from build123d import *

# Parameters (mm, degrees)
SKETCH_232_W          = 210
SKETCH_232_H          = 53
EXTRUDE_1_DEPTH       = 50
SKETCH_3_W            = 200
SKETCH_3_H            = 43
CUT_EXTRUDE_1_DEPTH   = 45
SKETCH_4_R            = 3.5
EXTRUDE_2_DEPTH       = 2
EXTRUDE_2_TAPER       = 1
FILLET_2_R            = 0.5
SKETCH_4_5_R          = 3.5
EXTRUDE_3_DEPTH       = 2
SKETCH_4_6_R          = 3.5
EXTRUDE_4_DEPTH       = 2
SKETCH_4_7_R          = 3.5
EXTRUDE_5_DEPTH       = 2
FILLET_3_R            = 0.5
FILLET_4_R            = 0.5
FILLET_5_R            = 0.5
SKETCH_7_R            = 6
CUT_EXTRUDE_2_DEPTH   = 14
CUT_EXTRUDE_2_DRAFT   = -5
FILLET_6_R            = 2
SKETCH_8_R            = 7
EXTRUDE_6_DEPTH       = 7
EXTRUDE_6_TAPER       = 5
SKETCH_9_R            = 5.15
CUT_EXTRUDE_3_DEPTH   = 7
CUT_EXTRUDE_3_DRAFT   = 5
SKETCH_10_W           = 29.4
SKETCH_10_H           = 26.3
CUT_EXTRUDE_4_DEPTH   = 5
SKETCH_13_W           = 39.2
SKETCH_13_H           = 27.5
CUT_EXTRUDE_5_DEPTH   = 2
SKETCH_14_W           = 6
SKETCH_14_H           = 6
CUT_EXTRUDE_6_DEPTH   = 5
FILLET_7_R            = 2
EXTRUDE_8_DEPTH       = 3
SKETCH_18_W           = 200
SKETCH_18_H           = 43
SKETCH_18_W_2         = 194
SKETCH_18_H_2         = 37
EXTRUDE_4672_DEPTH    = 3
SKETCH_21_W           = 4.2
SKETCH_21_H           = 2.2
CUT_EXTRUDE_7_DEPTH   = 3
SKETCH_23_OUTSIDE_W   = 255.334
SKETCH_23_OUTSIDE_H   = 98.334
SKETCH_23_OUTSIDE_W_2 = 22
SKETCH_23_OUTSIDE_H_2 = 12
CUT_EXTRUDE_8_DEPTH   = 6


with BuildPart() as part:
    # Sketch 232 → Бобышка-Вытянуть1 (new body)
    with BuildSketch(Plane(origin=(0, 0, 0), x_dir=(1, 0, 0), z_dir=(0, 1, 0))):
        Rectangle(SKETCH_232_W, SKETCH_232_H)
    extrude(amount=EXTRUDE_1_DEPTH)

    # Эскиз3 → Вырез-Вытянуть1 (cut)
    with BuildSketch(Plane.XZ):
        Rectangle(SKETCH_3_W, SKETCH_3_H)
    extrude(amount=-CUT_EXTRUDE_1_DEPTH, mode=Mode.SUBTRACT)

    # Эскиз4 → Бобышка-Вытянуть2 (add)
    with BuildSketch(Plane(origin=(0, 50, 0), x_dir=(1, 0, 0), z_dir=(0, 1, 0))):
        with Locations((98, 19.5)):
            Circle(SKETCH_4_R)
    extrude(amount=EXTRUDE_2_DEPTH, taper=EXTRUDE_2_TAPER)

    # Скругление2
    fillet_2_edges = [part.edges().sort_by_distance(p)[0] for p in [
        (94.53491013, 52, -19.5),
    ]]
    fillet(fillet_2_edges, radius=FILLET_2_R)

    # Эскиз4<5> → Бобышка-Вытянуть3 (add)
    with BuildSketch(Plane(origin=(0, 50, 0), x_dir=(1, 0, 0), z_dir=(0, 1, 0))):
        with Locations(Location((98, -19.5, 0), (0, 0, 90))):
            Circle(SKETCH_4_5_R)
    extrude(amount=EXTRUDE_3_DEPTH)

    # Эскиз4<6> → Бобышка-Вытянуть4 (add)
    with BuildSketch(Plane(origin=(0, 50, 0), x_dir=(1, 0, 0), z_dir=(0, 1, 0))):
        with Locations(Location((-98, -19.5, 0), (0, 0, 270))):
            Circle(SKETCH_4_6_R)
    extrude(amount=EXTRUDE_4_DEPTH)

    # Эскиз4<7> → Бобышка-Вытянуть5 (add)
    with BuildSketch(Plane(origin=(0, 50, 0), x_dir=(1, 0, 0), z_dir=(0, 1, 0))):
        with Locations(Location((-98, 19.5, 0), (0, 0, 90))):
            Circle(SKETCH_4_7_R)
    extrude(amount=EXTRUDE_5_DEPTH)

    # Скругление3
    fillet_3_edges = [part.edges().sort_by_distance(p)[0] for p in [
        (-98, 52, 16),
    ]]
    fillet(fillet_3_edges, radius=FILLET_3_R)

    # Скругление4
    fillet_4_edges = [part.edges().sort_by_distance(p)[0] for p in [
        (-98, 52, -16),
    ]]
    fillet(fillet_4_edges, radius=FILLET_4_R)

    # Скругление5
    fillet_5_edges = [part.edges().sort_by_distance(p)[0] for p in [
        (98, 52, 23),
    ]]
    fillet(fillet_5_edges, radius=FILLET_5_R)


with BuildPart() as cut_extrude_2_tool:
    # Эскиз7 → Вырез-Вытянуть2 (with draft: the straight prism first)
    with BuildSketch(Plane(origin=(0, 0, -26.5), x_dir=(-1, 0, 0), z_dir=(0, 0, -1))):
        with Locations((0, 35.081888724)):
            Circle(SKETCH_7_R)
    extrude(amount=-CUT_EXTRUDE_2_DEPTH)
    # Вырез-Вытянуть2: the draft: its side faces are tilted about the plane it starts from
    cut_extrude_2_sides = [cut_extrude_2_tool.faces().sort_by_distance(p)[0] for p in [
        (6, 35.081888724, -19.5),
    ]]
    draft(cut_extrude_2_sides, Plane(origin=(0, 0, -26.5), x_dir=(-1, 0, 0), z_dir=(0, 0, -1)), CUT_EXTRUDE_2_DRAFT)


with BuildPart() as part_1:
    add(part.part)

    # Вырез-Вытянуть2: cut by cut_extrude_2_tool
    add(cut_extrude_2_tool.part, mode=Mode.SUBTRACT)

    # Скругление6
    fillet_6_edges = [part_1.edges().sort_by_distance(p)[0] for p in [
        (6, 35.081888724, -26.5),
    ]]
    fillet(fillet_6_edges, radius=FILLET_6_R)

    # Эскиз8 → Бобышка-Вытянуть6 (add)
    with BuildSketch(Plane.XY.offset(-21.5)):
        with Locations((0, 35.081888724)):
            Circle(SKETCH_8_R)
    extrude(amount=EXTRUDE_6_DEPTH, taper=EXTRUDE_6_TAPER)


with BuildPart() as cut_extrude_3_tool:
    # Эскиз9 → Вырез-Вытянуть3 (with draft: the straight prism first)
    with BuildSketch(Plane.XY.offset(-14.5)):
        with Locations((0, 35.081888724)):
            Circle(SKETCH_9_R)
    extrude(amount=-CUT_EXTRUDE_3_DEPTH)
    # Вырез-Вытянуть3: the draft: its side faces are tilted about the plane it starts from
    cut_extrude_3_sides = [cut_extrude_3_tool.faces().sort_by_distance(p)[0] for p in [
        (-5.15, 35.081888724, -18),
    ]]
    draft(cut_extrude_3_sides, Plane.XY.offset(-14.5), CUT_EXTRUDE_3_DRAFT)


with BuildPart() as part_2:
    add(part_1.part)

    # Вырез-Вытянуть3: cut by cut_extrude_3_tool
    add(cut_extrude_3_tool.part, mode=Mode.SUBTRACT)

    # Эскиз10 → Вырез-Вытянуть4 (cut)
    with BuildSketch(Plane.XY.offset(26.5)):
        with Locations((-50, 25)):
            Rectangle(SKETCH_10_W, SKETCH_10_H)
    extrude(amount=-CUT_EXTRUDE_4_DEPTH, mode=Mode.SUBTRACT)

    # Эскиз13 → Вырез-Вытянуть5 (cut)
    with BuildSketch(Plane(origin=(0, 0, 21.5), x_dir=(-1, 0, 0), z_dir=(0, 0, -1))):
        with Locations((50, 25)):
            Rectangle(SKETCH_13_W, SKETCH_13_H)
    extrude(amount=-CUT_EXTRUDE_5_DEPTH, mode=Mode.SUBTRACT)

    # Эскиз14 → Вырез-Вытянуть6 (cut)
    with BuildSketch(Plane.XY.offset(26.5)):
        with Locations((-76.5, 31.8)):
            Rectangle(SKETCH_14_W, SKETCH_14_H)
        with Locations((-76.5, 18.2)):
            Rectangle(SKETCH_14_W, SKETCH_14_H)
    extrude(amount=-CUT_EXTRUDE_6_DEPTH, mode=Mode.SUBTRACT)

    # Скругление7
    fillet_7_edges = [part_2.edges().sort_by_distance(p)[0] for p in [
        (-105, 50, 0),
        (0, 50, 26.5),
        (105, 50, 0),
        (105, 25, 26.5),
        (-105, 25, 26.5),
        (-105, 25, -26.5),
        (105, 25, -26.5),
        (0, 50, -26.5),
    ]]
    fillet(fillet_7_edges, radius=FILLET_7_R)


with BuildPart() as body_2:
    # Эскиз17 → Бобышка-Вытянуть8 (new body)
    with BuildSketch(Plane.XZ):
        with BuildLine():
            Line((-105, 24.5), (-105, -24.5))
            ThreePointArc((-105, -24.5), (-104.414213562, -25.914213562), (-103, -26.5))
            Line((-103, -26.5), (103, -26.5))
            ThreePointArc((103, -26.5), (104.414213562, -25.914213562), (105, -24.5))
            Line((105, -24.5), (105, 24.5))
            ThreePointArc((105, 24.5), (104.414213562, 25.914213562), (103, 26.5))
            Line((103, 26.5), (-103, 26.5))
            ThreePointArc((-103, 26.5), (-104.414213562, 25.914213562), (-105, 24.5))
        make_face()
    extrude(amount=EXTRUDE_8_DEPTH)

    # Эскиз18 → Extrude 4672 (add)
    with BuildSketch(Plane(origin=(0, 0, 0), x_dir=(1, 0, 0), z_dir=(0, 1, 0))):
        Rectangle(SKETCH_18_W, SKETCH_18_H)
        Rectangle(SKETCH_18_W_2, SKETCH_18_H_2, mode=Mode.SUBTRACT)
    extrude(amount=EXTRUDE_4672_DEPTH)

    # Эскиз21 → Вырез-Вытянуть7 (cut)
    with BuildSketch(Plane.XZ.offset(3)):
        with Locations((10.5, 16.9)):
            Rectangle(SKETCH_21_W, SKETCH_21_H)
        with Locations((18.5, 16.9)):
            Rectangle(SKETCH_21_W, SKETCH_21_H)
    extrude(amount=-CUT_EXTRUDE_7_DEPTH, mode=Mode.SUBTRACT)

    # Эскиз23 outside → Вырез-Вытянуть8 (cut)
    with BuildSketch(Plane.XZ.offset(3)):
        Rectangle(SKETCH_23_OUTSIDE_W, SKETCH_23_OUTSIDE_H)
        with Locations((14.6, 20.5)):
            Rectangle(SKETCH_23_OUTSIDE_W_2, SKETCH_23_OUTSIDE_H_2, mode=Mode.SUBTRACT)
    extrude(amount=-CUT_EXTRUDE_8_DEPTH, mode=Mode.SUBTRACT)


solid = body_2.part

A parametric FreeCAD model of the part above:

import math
import FreeCAD as App
import Part
import Sketcher
from FreeCAD import Vector
Q = App.Units.Quantity


def edges_at(feature, points):
    """Names of the edges that pass closest to the given points."""
    edges = feature.Shape.Edges
    near = lambda p: min(range(len(edges)), key=lambda i: edges[i].distToShape(Part.Vertex(*p))[0])
    return sorted({f"Edge{near(p) + 1}" for p in points})


def faces_at(feature, points):
    """Names of the faces that lie closest to the given points."""
    faces = feature.Shape.Faces
    near = lambda p: min(range(len(faces)), key=lambda i: faces[i].distToShape(Part.Vertex(*p))[0])
    return sorted({f"Face{near(p) + 1}" for p in points})

doc = App.newDocument("Part")
body = doc.addObject("PartDesign::Body", "Body")

# Sketch on XZ plane
sketch1 = body.newObject("Sketcher::SketchObject", "Sketch")
sketch1.AttachmentSupport = (doc.getObject("XZ_Plane"), [""])
sketch1.MapMode = "FlatFace"
sketch1.addGeometry([
    Part.LineSegment(Vector(-105, -26, 0), Vector(-105, 26, 0)),
    Part.LineSegment(Vector(-105, 26, 0), Vector(105, 26, 0)),
    Part.LineSegment(Vector(105, 26, 0), Vector(105, -26, 0)),
    Part.LineSegment(Vector(105, -26, 0), Vector(-105, -26, 0)),
], False)
sketch1.addConstraint([
    Sketcher.Constraint("Coincident", 0, 2, 1, 1),
    Sketcher.Constraint("Coincident", 1, 2, 2, 1),
    Sketcher.Constraint("Coincident", 2, 2, 3, 1),
    Sketcher.Constraint("Coincident", 3, 2, 0, 1),
    Sketcher.Constraint("Vertical", 0),
    Sketcher.Constraint("Horizontal", 1),
    Sketcher.Constraint("Vertical", 2),
    Sketcher.Constraint("Horizontal", 3),
    Sketcher.Constraint("Symmetric", 0, 2, 2, 2, -1, 1),
    Sketcher.Constraint("DistanceX", 1, 1, 1, 2, Q("210 mm")),
    Sketcher.Constraint("DistanceY", 0, 1, 0, 2, Q("53 mm")),
])
pad1 = body.newObject("PartDesign::Pad", "Pad")
pad1.Profile = sketch1
pad1.Length = 50
pad1.Reversed = True

# Sketch on XZ plane
sketch2 = body.newObject("Sketcher::SketchObject", "Sketch001")
sketch2.AttachmentSupport = (doc.getObject("XZ_Plane"), [""])
sketch2.MapMode = "FlatFace"
sketch2.addGeometry([
    Part.LineSegment(Vector(-100, 22, 0), Vector(-100, -22, 0)),
    Part.LineSegment(Vector(-100, -22, 0), Vector(100, -22, 0)),
    Part.LineSegment(Vector(100, -22, 0), Vector(100, 22, 0)),
    Part.LineSegment(Vector(100, 22, 0), Vector(-100, 22, 0)),
], False)
sketch2.addConstraint([
    Sketcher.Constraint("Coincident", 0, 2, 1, 1),
    Sketcher.Constraint("Coincident", 1, 2, 2, 1),
    Sketcher.Constraint("Coincident", 2, 2, 3, 1),
    Sketcher.Constraint("Coincident", 3, 2, 0, 1),
    Sketcher.Constraint("Vertical", 0),
    Sketcher.Constraint("Horizontal", 1),
    Sketcher.Constraint("Vertical", 2),
    Sketcher.Constraint("Horizontal", 3),
    Sketcher.Constraint("Symmetric", 0, 2, 2, 2, -1, 1),
    Sketcher.Constraint("DistanceX", 1, 1, 1, 2, Q("200 mm")),
    Sketcher.Constraint("DistanceY", 0, 2, 0, 1, Q("43 mm")),
])
pocket1 = body.newObject("PartDesign::Pocket", "Pocket")
pocket1.Profile = sketch2
pocket1.Length = 45

# Sketch on XZ plane
sketch3 = body.newObject("Sketcher::SketchObject", "Sketch002")
sketch3.AttachmentSupport = (doc.getObject("XZ_Plane"), [""])
sketch3.MapMode = "FlatFace"
sketch3.AttachmentOffset = App.Placement(Vector(0, 0, -50), App.Rotation())
sketch3.addGeometry(Part.Circle(Vector(98, -19.5, 0), Vector(0, 0, 1), 3.5), False)
sketch3.addConstraint([
    Sketcher.Constraint("Diameter", 0, Q("7 mm")),
    Sketcher.Constraint("DistanceX", -1, 1, 0, 3, Q("98 mm")),
    Sketcher.Constraint("DistanceY", 0, 3, -1, 1, Q("19.5 mm")),
])
pad2 = body.newObject("PartDesign::Pad", "Pad001")
pad2.Profile = sketch3
pad2.Length = 2
pad2.Reversed = True
pad2.TaperAngle = -1
doc.recompute()

fillet = body.newObject("PartDesign::Fillet", "Fillet")
fillet.Base = (pad2, edges_at(pad2, [(94.535, 52, -19.5)]))
fillet.Radius = 0.5

# Sketch on XZ plane
sketch4 = body.newObject("Sketcher::SketchObject", "Sketch003")
sketch4.AttachmentSupport = (doc.getObject("XZ_Plane"), [""])
sketch4.MapMode = "FlatFace"
sketch4.AttachmentOffset = App.Placement(Vector(0, 0, -50), App.Rotation())
sketch4.addGeometry(Part.Circle(Vector(98, 19.5, 0), Vector(0, 0, 1), 3.5), False)
sketch4.addConstraint([
    Sketcher.Constraint("Diameter", 0, Q("7 mm")),
    Sketcher.Constraint("DistanceX", -1, 1, 0, 3, Q("98 mm")),
    Sketcher.Constraint("DistanceY", -1, 1, 0, 3, Q("19.5 mm")),
])
pad3 = body.newObject("PartDesign::Pad", "Pad002")
pad3.Profile = sketch4
pad3.Length = 2
pad3.Reversed = True

# Sketch on XZ plane
sketch5 = body.newObject("Sketcher::SketchObject", "Sketch004")
sketch5.AttachmentSupport = (doc.getObject("XZ_Plane"), [""])
sketch5.MapMode = "FlatFace"
sketch5.AttachmentOffset = App.Placement(Vector(0, 0, -50), App.Rotation())
sketch5.addGeometry(Part.Circle(Vector(-98, 19.5, 0), Vector(0, 0, 1), 3.5), False)
sketch5.addConstraint([
    Sketcher.Constraint("Diameter", 0, Q("7 mm")),
    Sketcher.Constraint("DistanceX", 0, 3, -1, 1, Q("98 mm")),
    Sketcher.Constraint("DistanceY", -1, 1, 0, 3, Q("19.5 mm")),
])
pad4 = body.newObject("PartDesign::Pad", "Pad003")
pad4.Profile = sketch5
pad4.Length = 2
pad4.Reversed = True

# Sketch on XZ plane
sketch6 = body.newObject("Sketcher::SketchObject", "Sketch005")
sketch6.AttachmentSupport = (doc.getObject("XZ_Plane"), [""])
sketch6.MapMode = "FlatFace"
sketch6.AttachmentOffset = App.Placement(Vector(0, 0, -50), App.Rotation())
sketch6.addGeometry(Part.Circle(Vector(-98, -19.5, 0), Vector(0, 0, 1), 3.5), False)
sketch6.addConstraint([
    Sketcher.Constraint("Diameter", 0, Q("7 mm")),
    Sketcher.Constraint("DistanceX", 0, 3, -1, 1, Q("98 mm")),
    Sketcher.Constraint("DistanceY", 0, 3, -1, 1, Q("19.5 mm")),
])
pad5 = body.newObject("PartDesign::Pad", "Pad004")
pad5.Profile = sketch6
pad5.Length = 2
pad5.Reversed = True
doc.recompute()

fillet2 = body.newObject("PartDesign::Fillet", "Fillet001")
fillet2.Base = (pad5, edges_at(pad5, [(-98, 52, 16)]))
fillet2.Radius = 0.5
doc.recompute()

fillet3 = body.newObject("PartDesign::Fillet", "Fillet002")
fillet3.Base = (fillet2, edges_at(fillet2, [(-98, 52, -16)]))
fillet3.Radius = 0.5
doc.recompute()

fillet4 = body.newObject("PartDesign::Fillet", "Fillet003")
fillet4.Base = (fillet3, edges_at(fillet3, [(98, 52, 23)]))
fillet4.Radius = 0.5
body2 = doc.addObject("PartDesign::Body", "Body001")

# Sketch on XY plane
sketch7 = body2.newObject("Sketcher::SketchObject", "Sketch006")
sketch7.AttachmentSupport = (doc.getObject("XY_Plane001"), [""])
sketch7.MapMode = "FlatFace"
sketch7.AttachmentOffset = App.Placement(Vector(0, 0, -26.5), App.Rotation())
sketch7.addGeometry(Part.Circle(Vector(0, 35, 0), Vector(0, 0, 1), 6), False)
sketch7.addConstraint([
    Sketcher.Constraint("PointOnObject", 0, 3, -2),
    Sketcher.Constraint("Diameter", 0, Q("12 mm")),
    Sketcher.Constraint("DistanceY", -1, 1, 0, 3, Q("35.081889 mm")),
])
pad6 = body2.newObject("PartDesign::Pad", "Pad005")
pad6.Profile = sketch7
pad6.Length = 14
doc.recompute()

datumplane = body2.newObject("PartDesign::Plane", "DatumPlane")
datumplane.AttachmentSupport = (doc.getObject("XY_Plane001"), [""])
datumplane.MapMode = "FlatFace"
datumplane.AttachmentOffset = App.Placement(Vector(0, 0, -26.5), App.Rotation())
draft = body2.newObject("PartDesign::Draft", "Draft")
draft.Base = (pad6, faces_at(pad6, [(6, 35.082, -19.5)]))
draft.NeutralPlane = (datumplane, [""])
draft.Angle = 5
draft.Reversed = False
doc.recompute()

boolean = body.newObject("PartDesign::Boolean", "Boolean")
boolean.Type = "Cut"
boolean.addObjects([body2])
doc.recompute()

fillet5 = body.newObject("PartDesign::Fillet", "Fillet004")
fillet5.Base = (boolean, edges_at(boolean, [(6, 35.082, -26.5)]))
fillet5.Radius = 2

# Sketch on XY plane
sketch8 = body.newObject("Sketcher::SketchObject", "Sketch007")
sketch8.AttachmentSupport = (doc.getObject("XY_Plane"), [""])
sketch8.MapMode = "FlatFace"
sketch8.AttachmentOffset = App.Placement(Vector(0, 0, -21.5), App.Rotation())
sketch8.addGeometry(Part.Circle(Vector(0, 35, 0), Vector(0, 0, 1), 7), False)
sketch8.addConstraint([
    Sketcher.Constraint("PointOnObject", 0, 3, -2),
    Sketcher.Constraint("Diameter", 0, Q("14 mm")),
    Sketcher.Constraint("DistanceY", -1, 1, 0, 3, Q("35.081889 mm")),
])
pad7 = body.newObject("PartDesign::Pad", "Pad006")
pad7.Profile = sketch8
pad7.Length = 7
pad7.TaperAngle = -5
body3 = doc.addObject("PartDesign::Body", "Body002")

# Sketch on XY plane
sketch9 = body3.newObject("Sketcher::SketchObject", "Sketch008")
sketch9.AttachmentSupport = (doc.getObject("XY_Plane002"), [""])
sketch9.MapMode = "FlatFace"
sketch9.AttachmentOffset = App.Placement(Vector(0, 0, -14.5), App.Rotation())
sketch9.addGeometry(Part.Circle(Vector(0, 35, 0), Vector(0, 0, 1), 5), False)
sketch9.addConstraint([
    Sketcher.Constraint("PointOnObject", 0, 3, -2),
    Sketcher.Constraint("Diameter", 0, Q("10.3 mm")),
    Sketcher.Constraint("DistanceY", -1, 1, 0, 3, Q("35.081889 mm")),
])
pad8 = body3.newObject("PartDesign::Pad", "Pad007")
pad8.Profile = sketch9
pad8.Length = 7
pad8.Reversed = True
doc.recompute()

datumplane2 = body3.newObject("PartDesign::Plane", "DatumPlane001")
datumplane2.AttachmentSupport = (doc.getObject("XY_Plane002"), [""])
datumplane2.MapMode = "FlatFace"
datumplane2.AttachmentOffset = App.Placement(Vector(0, 0, -14.5), App.Rotation())
draft2 = body3.newObject("PartDesign::Draft", "Draft001")
draft2.Base = (pad8, faces_at(pad8, [(-5.15, 35.082, -18)]))
draft2.NeutralPlane = (datumplane2, [""])
draft2.Angle = 5
draft2.Reversed = False
doc.recompute()

boolean2 = body.newObject("PartDesign::Boolean", "Boolean001")
boolean2.Type = "Cut"
boolean2.addObjects([body3])

# Sketch on XY plane
sketch10 = body.newObject("Sketcher::SketchObject", "Sketch009")
sketch10.AttachmentSupport = (doc.getObject("XY_Plane"), [""])
sketch10.MapMode = "FlatFace"
sketch10.AttachmentOffset = App.Placement(Vector(0, 0, 26.5), App.Rotation())
sketch10.addGeometry([
    Part.LineSegment(Vector(-65, 38, 0), Vector(-65, 12, 0)),
    Part.LineSegment(Vector(-65, 12, 0), Vector(-35, 12, 0)),
    Part.LineSegment(Vector(-35, 12, 0), Vector(-35, 38, 0)),
    Part.LineSegment(Vector(-35, 38, 0), Vector(-65, 38, 0)),
], False)
sketch10.addConstraint([
    Sketcher.Constraint("Coincident", 0, 2, 1, 1),
    Sketcher.Constraint("Coincident", 1, 2, 2, 1),
    Sketcher.Constraint("Coincident", 2, 2, 3, 1),
    Sketcher.Constraint("Coincident", 3, 2, 0, 1),
    Sketcher.Constraint("Vertical", 0),
    Sketcher.Constraint("Horizontal", 1),
    Sketcher.Constraint("Vertical", 2),
    Sketcher.Constraint("Horizontal", 3),
    Sketcher.Constraint("DistanceX", 1, 1, 1, 2, Q("29.4 mm")),
    Sketcher.Constraint("DistanceY", 0, 2, 0, 1, Q("26.3 mm")),
    Sketcher.Constraint("DistanceX", 0, 2, -1, 1, Q("64.7 mm")),
    Sketcher.Constraint("DistanceY", -1, 1, 0, 2, Q("11.85 mm")),
])
pocket2 = body.newObject("PartDesign::Pocket", "Pocket001")
pocket2.Profile = sketch10
pocket2.Length = 5

# Sketch on XY plane
sketch11 = body.newObject("Sketcher::SketchObject", "Sketch010")
sketch11.AttachmentSupport = (doc.getObject("XY_Plane"), [""])
sketch11.MapMode = "FlatFace"
sketch11.AttachmentOffset = App.Placement(Vector(0, 0, 21.5), App.Rotation())
sketch11.addGeometry([
    Part.LineSegment(Vector(-30, 39, 0), Vector(-30, 11, 0)),
    Part.LineSegment(Vector(-30, 11, 0), Vector(-70, 11, 0)),
    Part.LineSegment(Vector(-70, 11, 0), Vector(-70, 39, 0)),
    Part.LineSegment(Vector(-70, 39, 0), Vector(-30, 39, 0)),
], False)
sketch11.addConstraint([
    Sketcher.Constraint("Coincident", 0, 2, 1, 1),
    Sketcher.Constraint("Coincident", 1, 2, 2, 1),
    Sketcher.Constraint("Coincident", 2, 2, 3, 1),
    Sketcher.Constraint("Coincident", 3, 2, 0, 1),
    Sketcher.Constraint("Vertical", 0),
    Sketcher.Constraint("Horizontal", 1),
    Sketcher.Constraint("Vertical", 2),
    Sketcher.Constraint("Horizontal", 3),
    Sketcher.Constraint("DistanceX", 1, 2, 1, 1, Q("39.2 mm")),
    Sketcher.Constraint("DistanceY", 0, 2, 0, 1, Q("27.5 mm")),
    Sketcher.Constraint("DistanceX", 0, 2, -1, 1, Q("30.4 mm")),
    Sketcher.Constraint("DistanceY", -1, 1, 0, 2, Q("11.25 mm")),
])
pocket3 = body.newObject("PartDesign::Pocket", "Pocket002")
pocket3.Profile = sketch11
pocket3.Length = 2
pocket3.Reversed = True

# Sketch on XY plane
sketch12 = body.newObject("Sketcher::SketchObject", "Sketch011")
sketch12.AttachmentSupport = (doc.getObject("XY_Plane"), [""])
sketch12.MapMode = "FlatFace"
sketch12.AttachmentOffset = App.Placement(Vector(0, 0, 26.5), App.Rotation())
sketch12.addGeometry([
    Part.LineSegment(Vector(-80, 35, 0), Vector(-80, 29, 0)),  # 0
    Part.LineSegment(Vector(-80, 29, 0), Vector(-74, 29, 0)),  # 1
    Part.LineSegment(Vector(-74, 29, 0), Vector(-74, 35, 0)),  # 2
    Part.LineSegment(Vector(-74, 35, 0), Vector(-80, 35, 0)),  # 3
    Part.LineSegment(Vector(-80, 21, 0), Vector(-80, 15, 0)),  # 4
    Part.LineSegment(Vector(-80, 15, 0), Vector(-74, 15, 0)),  # 5
    Part.LineSegment(Vector(-74, 15, 0), Vector(-74, 21, 0)),  # 6
    Part.LineSegment(Vector(-74, 21, 0), Vector(-80, 21, 0)),  # 7
], False)
sketch12.addConstraint([
    Sketcher.Constraint("Coincident", 0, 2, 1, 1),
    Sketcher.Constraint("Coincident", 1, 2, 2, 1),
    Sketcher.Constraint("Coincident", 2, 2, 3, 1),
    Sketcher.Constraint("Coincident", 3, 2, 0, 1),
    Sketcher.Constraint("Coincident", 4, 2, 5, 1),
    Sketcher.Constraint("Coincident", 5, 2, 6, 1),
    Sketcher.Constraint("Coincident", 6, 2, 7, 1),
    Sketcher.Constraint("Coincident", 7, 2, 4, 1),
    Sketcher.Constraint("Vertical", 0),
    Sketcher.Constraint("Horizontal", 1),
    Sketcher.Constraint("Vertical", 2),
    Sketcher.Constraint("Horizontal", 3),
    Sketcher.Constraint("Vertical", 4),
    Sketcher.Constraint("Horizontal", 5),
    Sketcher.Constraint("Vertical", 6),
    Sketcher.Constraint("Horizontal", 7),
    Sketcher.Constraint("Vertical", 3, 2, 4, 2),
    Sketcher.Constraint("Vertical", 2, 2, 5, 2),
    Sketcher.Constraint("Equal", 7, 0),
    Sketcher.Constraint("Equal", 2, 4),
    Sketcher.Constraint("DistanceX", 1, 1, 1, 2, Q("6 mm")),
    Sketcher.Constraint("DistanceX", 0, 2, -1, 1, Q("79.5 mm")),
    Sketcher.Constraint("DistanceY", -1, 1, 0, 2, Q("28.8 mm")),
    Sketcher.Constraint("DistanceY", -1, 1, 4, 2, Q("15.2 mm")),
])
pocket4 = body.newObject("PartDesign::Pocket", "Pocket003")
pocket4.Profile = sketch12
pocket4.Length = 5
doc.recompute()

fillet6 = body.newObject("PartDesign::Fillet", "Fillet005")
fillet6.Base = (pocket4, edges_at(pocket4, [
    (-105, 50, 0),
    (0, 50, 26.5),
    (105, 50, 0),
    (105, 25, 26.5),
    (-105, 25, 26.5),
    (-105, 25, -26.5),
    (105, 25, -26.5),
    (0, 50, -26.5),
]))
fillet6.Radius = 2
body4 = doc.addObject("PartDesign::Body", "Body003")

# Sketch on XZ plane
sketch13 = body4.newObject("Sketcher::SketchObject", "Sketch012")
sketch13.AttachmentSupport = (doc.getObject("XZ_Plane003"), [""])
sketch13.MapMode = "FlatFace"
sketch13.addGeometry([
    Part.LineSegment(Vector(-105, 24.5, 0), Vector(-105, -24.5, 0)),  # 0
    Part.ArcOfCircle(Part.Circle(Vector(-103, -24.5, 0), Vector(0, 0, 1), 2), math.radians(-180), math.radians(-90)),  # 1
    Part.LineSegment(Vector(-103, -26.5, 0), Vector(103, -26.5, 0)),  # 2
    Part.ArcOfCircle(Part.Circle(Vector(103, -24.5, 0), Vector(0, 0, 1), 2), math.radians(-90), math.radians(0)),  # 3
    Part.LineSegment(Vector(105, -24.5, 0), Vector(105, 24.5, 0)),  # 4
    Part.ArcOfCircle(Part.Circle(Vector(103, 24.5, 0), Vector(0, 0, 1), 2), math.radians(0), math.radians(90)),  # 5
    Part.LineSegment(Vector(103, 26.5, 0), Vector(-103, 26.5, 0)),  # 6
    Part.ArcOfCircle(Part.Circle(Vector(-103, 24.5, 0), Vector(0, 0, 1), 2), math.radians(90), math.radians(180)),  # 7
], False)
sketch13.addConstraint([
    Sketcher.Constraint("Tangent", 0, 2, 1, 1),
    Sketcher.Constraint("Tangent", 1, 2, 2, 1),
    Sketcher.Constraint("Tangent", 2, 2, 3, 1),
    Sketcher.Constraint("Tangent", 3, 2, 4, 1),
    Sketcher.Constraint("Tangent", 4, 2, 5, 1),
    Sketcher.Constraint("Tangent", 5, 2, 6, 1),
    Sketcher.Constraint("Tangent", 6, 2, 7, 1),
    Sketcher.Constraint("Tangent", 7, 2, 0, 1),
    Sketcher.Constraint("Vertical", 0),
    Sketcher.Constraint("Horizontal", 2),
    Sketcher.Constraint("Vertical", 4),
    Sketcher.Constraint("Horizontal", 6),
    Sketcher.Constraint("Equal", 1, 3),
    Sketcher.Constraint("Equal", 3, 5),
    Sketcher.Constraint("Equal", 5, 7),
    Sketcher.Constraint("Symmetric", 1, 3, 5, 3, -1, 1),
    Sketcher.Constraint("Radius", 1, Q("2 mm")),
    Sketcher.Constraint("DistanceX", 2, 1, 2, 2, Q("206 mm")),
    Sketcher.Constraint("DistanceY", 0, 2, 0, 1, Q("49 mm")),
])
pad9 = body4.newObject("PartDesign::Pad", "Pad008")
pad9.Profile = sketch13
pad9.Length = 3

# Sketch on XZ plane
sketch14 = body4.newObject("Sketcher::SketchObject", "Sketch013")
sketch14.AttachmentSupport = (doc.getObject("XZ_Plane003"), [""])
sketch14.MapMode = "FlatFace"
sketch14.addGeometry([
    Part.LineSegment(Vector(-100, -22, 0), Vector(-100, 22, 0)),  # 0
    Part.LineSegment(Vector(-100, 22, 0), Vector(100, 22, 0)),  # 1
    Part.LineSegment(Vector(100, 22, 0), Vector(100, -22, 0)),  # 2
    Part.LineSegment(Vector(100, -22, 0), Vector(-100, -22, 0)),  # 3
    Part.LineSegment(Vector(97, 18, 0), Vector(-97, 18, 0)),  # 4
    Part.LineSegment(Vector(-97, 18, 0), Vector(-97, -18, 0)),  # 5
    Part.LineSegment(Vector(-97, -18, 0), Vector(97, -18, 0)),  # 6
    Part.LineSegment(Vector(97, -18, 0), Vector(97, 18, 0)),  # 7
], False)
sketch14.addConstraint([
    Sketcher.Constraint("Coincident", 0, 2, 1, 1),
    Sketcher.Constraint("Coincident", 1, 2, 2, 1),
    Sketcher.Constraint("Coincident", 2, 2, 3, 1),
    Sketcher.Constraint("Coincident", 3, 2, 0, 1),
    Sketcher.Constraint("Coincident", 4, 2, 5, 1),
    Sketcher.Constraint("Coincident", 5, 2, 6, 1),
    Sketcher.Constraint("Coincident", 6, 2, 7, 1),
    Sketcher.Constraint("Coincident", 7, 2, 4, 1),
    Sketcher.Constraint("Vertical", 0),
    Sketcher.Constraint("Horizontal", 1),
    Sketcher.Constraint("Vertical", 2),
    Sketcher.Constraint("Horizontal", 3),
    Sketcher.Constraint("Horizontal", 4),
    Sketcher.Constraint("Vertical", 5),
    Sketcher.Constraint("Horizontal", 6),
    Sketcher.Constraint("Vertical", 7),
    Sketcher.Constraint("Symmetric", 0, 2, 2, 2, -1, 1),
    Sketcher.Constraint("Symmetric", 4, 2, 6, 2, -1, 1),
    Sketcher.Constraint("DistanceX", 1, 1, 1, 2, Q("200 mm")),
    Sketcher.Constraint("DistanceX", 4, 2, 4, 1, Q("194 mm")),
    Sketcher.Constraint("DistanceY", 0, 1, 0, 2, Q("43 mm")),
    Sketcher.Constraint("DistanceY", 5, 2, 5, 1, Q("37 mm")),
])
pad10 = body4.newObject("PartDesign::Pad", "Pad009")
pad10.Profile = sketch14
pad10.Length = 3
pad10.Reversed = True

# Sketch on XZ plane
sketch15 = body4.newObject("Sketcher::SketchObject", "Sketch014")
sketch15.AttachmentSupport = (doc.getObject("XZ_Plane003"), [""])
sketch15.MapMode = "FlatFace"
sketch15.AttachmentOffset = App.Placement(Vector(0, 0, 3), App.Rotation())
sketch15.addGeometry([
    Part.LineSegment(Vector(8.4, 18, 0), Vector(8.4, 15.8, 0)),  # 0
    Part.LineSegment(Vector(8.4, 15.8, 0), Vector(12.6, 15.8, 0)),  # 1
    Part.LineSegment(Vector(12.6, 15.8, 0), Vector(12.6, 18, 0)),  # 2
    Part.LineSegment(Vector(12.6, 18, 0), Vector(8.4, 18, 0)),  # 3
    Part.LineSegment(Vector(16.4, 18, 0), Vector(16.4, 15.8, 0)),  # 4
    Part.LineSegment(Vector(16.4, 15.8, 0), Vector(20.6, 15.8, 0)),  # 5
    Part.LineSegment(Vector(20.6, 15.8, 0), Vector(20.6, 18, 0)),  # 6
    Part.LineSegment(Vector(20.6, 18, 0), Vector(16.4, 18, 0)),  # 7
], False)
sketch15.addConstraint([
    Sketcher.Constraint("Coincident", 0, 2, 1, 1),
    Sketcher.Constraint("Coincident", 1, 2, 2, 1),
    Sketcher.Constraint("Coincident", 2, 2, 3, 1),
    Sketcher.Constraint("Coincident", 3, 2, 0, 1),
    Sketcher.Constraint("Coincident", 4, 2, 5, 1),
    Sketcher.Constraint("Coincident", 5, 2, 6, 1),
    Sketcher.Constraint("Coincident", 6, 2, 7, 1),
    Sketcher.Constraint("Coincident", 7, 2, 4, 1),
    Sketcher.Constraint("Vertical", 0),
    Sketcher.Constraint("Horizontal", 1),
    Sketcher.Constraint("Vertical", 2),
    Sketcher.Constraint("Horizontal", 3),
    Sketcher.Constraint("Vertical", 4),
    Sketcher.Constraint("Horizontal", 5),
    Sketcher.Constraint("Vertical", 6),
    Sketcher.Constraint("Horizontal", 7),
    Sketcher.Constraint("Horizontal", 1, 2, 4, 2),
    Sketcher.Constraint("Horizontal", 3, 2, 6, 2),
    Sketcher.Constraint("Equal", 3, 5),
    Sketcher.Constraint("DistanceX", 1, 1, 1, 2, Q("4.2 mm")),
    Sketcher.Constraint("DistanceY", 0, 2, 0, 1, Q("2.2 mm")),
    Sketcher.Constraint("DistanceY", -1, 1, 2, 2, Q("18 mm")),
    Sketcher.Constraint("DistanceX", 0, 2, 4, 2, Q("8 mm")),
    Sketcher.Constraint("DistanceX", -1, 1, 0, 2, Q("8.4 mm")),
])
pocket5 = body4.newObject("PartDesign::Pocket", "Pocket004")
pocket5.Profile = sketch15
pocket5.Length = 3

# Sketch on XZ plane
sketch16 = body4.newObject("Sketcher::SketchObject", "Sketch015")
sketch16.AttachmentSupport = (doc.getObject("XZ_Plane003"), [""])
sketch16.MapMode = "FlatFace"
sketch16.AttachmentOffset = App.Placement(Vector(0, 0, 3), App.Rotation())
sketch16.addGeometry([
    Part.LineSegment(Vector(-128, 49, 0), Vector(-128, -49, 0)),  # 0
    Part.LineSegment(Vector(-128, -49, 0), Vector(128, -49, 0)),  # 1
    Part.LineSegment(Vector(128, -49, 0), Vector(128, 49, 0)),  # 2
    Part.LineSegment(Vector(128, 49, 0), Vector(-128, 49, 0)),  # 3
    Part.LineSegment(Vector(26, 14, 0), Vector(4, 14, 0)),  # 4
    Part.LineSegment(Vector(4, 14, 0), Vector(4, 26, 0)),  # 5
    Part.LineSegment(Vector(4, 26, 0), Vector(26, 26, 0)),  # 6
    Part.LineSegment(Vector(26, 26, 0), Vector(26, 14, 0)),  # 7
], False)
sketch16.addConstraint([
    Sketcher.Constraint("Coincident", 0, 2, 1, 1),
    Sketcher.Constraint("Coincident", 1, 2, 2, 1),
    Sketcher.Constraint("Coincident", 2, 2, 3, 1),
    Sketcher.Constraint("Coincident", 3, 2, 0, 1),
    Sketcher.Constraint("Coincident", 4, 2, 5, 1),
    Sketcher.Constraint("Coincident", 5, 2, 6, 1),
    Sketcher.Constraint("Coincident", 6, 2, 7, 1),
    Sketcher.Constraint("Coincident", 7, 2, 4, 1),
    Sketcher.Constraint("Vertical", 0),
    Sketcher.Constraint("Horizontal", 1),
    Sketcher.Constraint("Vertical", 2),
    Sketcher.Constraint("Horizontal", 3),
    Sketcher.Constraint("Horizontal", 4),
    Sketcher.Constraint("Vertical", 5),
    Sketcher.Constraint("Horizontal", 6),
    Sketcher.Constraint("Vertical", 7),
    Sketcher.Constraint("Symmetric", 0, 2, 2, 2, -1, 1),
    Sketcher.Constraint("DistanceX", 4, 2, 4, 1, Q("22 mm")),
    Sketcher.Constraint("DistanceY", 5, 1, 5, 2, Q("12 mm")),
    Sketcher.Constraint("DistanceX", -1, 1, 4, 2, Q("3.6 mm")),
    Sketcher.Constraint("DistanceY", -1, 1, 4, 2, Q("14.5 mm")),
    Sketcher.Constraint("DistanceX", 1, 1, 1, 2, Q("255.334 mm")),
    Sketcher.Constraint("DistanceY", 0, 2, 0, 1, Q("98.334 mm")),
])
pocket6 = body4.newObject("PartDesign::Pocket", "Pocket005")
pocket6.Profile = sketch16
pocket6.Length = 6
body.Visibility = False

doc.recompute()
